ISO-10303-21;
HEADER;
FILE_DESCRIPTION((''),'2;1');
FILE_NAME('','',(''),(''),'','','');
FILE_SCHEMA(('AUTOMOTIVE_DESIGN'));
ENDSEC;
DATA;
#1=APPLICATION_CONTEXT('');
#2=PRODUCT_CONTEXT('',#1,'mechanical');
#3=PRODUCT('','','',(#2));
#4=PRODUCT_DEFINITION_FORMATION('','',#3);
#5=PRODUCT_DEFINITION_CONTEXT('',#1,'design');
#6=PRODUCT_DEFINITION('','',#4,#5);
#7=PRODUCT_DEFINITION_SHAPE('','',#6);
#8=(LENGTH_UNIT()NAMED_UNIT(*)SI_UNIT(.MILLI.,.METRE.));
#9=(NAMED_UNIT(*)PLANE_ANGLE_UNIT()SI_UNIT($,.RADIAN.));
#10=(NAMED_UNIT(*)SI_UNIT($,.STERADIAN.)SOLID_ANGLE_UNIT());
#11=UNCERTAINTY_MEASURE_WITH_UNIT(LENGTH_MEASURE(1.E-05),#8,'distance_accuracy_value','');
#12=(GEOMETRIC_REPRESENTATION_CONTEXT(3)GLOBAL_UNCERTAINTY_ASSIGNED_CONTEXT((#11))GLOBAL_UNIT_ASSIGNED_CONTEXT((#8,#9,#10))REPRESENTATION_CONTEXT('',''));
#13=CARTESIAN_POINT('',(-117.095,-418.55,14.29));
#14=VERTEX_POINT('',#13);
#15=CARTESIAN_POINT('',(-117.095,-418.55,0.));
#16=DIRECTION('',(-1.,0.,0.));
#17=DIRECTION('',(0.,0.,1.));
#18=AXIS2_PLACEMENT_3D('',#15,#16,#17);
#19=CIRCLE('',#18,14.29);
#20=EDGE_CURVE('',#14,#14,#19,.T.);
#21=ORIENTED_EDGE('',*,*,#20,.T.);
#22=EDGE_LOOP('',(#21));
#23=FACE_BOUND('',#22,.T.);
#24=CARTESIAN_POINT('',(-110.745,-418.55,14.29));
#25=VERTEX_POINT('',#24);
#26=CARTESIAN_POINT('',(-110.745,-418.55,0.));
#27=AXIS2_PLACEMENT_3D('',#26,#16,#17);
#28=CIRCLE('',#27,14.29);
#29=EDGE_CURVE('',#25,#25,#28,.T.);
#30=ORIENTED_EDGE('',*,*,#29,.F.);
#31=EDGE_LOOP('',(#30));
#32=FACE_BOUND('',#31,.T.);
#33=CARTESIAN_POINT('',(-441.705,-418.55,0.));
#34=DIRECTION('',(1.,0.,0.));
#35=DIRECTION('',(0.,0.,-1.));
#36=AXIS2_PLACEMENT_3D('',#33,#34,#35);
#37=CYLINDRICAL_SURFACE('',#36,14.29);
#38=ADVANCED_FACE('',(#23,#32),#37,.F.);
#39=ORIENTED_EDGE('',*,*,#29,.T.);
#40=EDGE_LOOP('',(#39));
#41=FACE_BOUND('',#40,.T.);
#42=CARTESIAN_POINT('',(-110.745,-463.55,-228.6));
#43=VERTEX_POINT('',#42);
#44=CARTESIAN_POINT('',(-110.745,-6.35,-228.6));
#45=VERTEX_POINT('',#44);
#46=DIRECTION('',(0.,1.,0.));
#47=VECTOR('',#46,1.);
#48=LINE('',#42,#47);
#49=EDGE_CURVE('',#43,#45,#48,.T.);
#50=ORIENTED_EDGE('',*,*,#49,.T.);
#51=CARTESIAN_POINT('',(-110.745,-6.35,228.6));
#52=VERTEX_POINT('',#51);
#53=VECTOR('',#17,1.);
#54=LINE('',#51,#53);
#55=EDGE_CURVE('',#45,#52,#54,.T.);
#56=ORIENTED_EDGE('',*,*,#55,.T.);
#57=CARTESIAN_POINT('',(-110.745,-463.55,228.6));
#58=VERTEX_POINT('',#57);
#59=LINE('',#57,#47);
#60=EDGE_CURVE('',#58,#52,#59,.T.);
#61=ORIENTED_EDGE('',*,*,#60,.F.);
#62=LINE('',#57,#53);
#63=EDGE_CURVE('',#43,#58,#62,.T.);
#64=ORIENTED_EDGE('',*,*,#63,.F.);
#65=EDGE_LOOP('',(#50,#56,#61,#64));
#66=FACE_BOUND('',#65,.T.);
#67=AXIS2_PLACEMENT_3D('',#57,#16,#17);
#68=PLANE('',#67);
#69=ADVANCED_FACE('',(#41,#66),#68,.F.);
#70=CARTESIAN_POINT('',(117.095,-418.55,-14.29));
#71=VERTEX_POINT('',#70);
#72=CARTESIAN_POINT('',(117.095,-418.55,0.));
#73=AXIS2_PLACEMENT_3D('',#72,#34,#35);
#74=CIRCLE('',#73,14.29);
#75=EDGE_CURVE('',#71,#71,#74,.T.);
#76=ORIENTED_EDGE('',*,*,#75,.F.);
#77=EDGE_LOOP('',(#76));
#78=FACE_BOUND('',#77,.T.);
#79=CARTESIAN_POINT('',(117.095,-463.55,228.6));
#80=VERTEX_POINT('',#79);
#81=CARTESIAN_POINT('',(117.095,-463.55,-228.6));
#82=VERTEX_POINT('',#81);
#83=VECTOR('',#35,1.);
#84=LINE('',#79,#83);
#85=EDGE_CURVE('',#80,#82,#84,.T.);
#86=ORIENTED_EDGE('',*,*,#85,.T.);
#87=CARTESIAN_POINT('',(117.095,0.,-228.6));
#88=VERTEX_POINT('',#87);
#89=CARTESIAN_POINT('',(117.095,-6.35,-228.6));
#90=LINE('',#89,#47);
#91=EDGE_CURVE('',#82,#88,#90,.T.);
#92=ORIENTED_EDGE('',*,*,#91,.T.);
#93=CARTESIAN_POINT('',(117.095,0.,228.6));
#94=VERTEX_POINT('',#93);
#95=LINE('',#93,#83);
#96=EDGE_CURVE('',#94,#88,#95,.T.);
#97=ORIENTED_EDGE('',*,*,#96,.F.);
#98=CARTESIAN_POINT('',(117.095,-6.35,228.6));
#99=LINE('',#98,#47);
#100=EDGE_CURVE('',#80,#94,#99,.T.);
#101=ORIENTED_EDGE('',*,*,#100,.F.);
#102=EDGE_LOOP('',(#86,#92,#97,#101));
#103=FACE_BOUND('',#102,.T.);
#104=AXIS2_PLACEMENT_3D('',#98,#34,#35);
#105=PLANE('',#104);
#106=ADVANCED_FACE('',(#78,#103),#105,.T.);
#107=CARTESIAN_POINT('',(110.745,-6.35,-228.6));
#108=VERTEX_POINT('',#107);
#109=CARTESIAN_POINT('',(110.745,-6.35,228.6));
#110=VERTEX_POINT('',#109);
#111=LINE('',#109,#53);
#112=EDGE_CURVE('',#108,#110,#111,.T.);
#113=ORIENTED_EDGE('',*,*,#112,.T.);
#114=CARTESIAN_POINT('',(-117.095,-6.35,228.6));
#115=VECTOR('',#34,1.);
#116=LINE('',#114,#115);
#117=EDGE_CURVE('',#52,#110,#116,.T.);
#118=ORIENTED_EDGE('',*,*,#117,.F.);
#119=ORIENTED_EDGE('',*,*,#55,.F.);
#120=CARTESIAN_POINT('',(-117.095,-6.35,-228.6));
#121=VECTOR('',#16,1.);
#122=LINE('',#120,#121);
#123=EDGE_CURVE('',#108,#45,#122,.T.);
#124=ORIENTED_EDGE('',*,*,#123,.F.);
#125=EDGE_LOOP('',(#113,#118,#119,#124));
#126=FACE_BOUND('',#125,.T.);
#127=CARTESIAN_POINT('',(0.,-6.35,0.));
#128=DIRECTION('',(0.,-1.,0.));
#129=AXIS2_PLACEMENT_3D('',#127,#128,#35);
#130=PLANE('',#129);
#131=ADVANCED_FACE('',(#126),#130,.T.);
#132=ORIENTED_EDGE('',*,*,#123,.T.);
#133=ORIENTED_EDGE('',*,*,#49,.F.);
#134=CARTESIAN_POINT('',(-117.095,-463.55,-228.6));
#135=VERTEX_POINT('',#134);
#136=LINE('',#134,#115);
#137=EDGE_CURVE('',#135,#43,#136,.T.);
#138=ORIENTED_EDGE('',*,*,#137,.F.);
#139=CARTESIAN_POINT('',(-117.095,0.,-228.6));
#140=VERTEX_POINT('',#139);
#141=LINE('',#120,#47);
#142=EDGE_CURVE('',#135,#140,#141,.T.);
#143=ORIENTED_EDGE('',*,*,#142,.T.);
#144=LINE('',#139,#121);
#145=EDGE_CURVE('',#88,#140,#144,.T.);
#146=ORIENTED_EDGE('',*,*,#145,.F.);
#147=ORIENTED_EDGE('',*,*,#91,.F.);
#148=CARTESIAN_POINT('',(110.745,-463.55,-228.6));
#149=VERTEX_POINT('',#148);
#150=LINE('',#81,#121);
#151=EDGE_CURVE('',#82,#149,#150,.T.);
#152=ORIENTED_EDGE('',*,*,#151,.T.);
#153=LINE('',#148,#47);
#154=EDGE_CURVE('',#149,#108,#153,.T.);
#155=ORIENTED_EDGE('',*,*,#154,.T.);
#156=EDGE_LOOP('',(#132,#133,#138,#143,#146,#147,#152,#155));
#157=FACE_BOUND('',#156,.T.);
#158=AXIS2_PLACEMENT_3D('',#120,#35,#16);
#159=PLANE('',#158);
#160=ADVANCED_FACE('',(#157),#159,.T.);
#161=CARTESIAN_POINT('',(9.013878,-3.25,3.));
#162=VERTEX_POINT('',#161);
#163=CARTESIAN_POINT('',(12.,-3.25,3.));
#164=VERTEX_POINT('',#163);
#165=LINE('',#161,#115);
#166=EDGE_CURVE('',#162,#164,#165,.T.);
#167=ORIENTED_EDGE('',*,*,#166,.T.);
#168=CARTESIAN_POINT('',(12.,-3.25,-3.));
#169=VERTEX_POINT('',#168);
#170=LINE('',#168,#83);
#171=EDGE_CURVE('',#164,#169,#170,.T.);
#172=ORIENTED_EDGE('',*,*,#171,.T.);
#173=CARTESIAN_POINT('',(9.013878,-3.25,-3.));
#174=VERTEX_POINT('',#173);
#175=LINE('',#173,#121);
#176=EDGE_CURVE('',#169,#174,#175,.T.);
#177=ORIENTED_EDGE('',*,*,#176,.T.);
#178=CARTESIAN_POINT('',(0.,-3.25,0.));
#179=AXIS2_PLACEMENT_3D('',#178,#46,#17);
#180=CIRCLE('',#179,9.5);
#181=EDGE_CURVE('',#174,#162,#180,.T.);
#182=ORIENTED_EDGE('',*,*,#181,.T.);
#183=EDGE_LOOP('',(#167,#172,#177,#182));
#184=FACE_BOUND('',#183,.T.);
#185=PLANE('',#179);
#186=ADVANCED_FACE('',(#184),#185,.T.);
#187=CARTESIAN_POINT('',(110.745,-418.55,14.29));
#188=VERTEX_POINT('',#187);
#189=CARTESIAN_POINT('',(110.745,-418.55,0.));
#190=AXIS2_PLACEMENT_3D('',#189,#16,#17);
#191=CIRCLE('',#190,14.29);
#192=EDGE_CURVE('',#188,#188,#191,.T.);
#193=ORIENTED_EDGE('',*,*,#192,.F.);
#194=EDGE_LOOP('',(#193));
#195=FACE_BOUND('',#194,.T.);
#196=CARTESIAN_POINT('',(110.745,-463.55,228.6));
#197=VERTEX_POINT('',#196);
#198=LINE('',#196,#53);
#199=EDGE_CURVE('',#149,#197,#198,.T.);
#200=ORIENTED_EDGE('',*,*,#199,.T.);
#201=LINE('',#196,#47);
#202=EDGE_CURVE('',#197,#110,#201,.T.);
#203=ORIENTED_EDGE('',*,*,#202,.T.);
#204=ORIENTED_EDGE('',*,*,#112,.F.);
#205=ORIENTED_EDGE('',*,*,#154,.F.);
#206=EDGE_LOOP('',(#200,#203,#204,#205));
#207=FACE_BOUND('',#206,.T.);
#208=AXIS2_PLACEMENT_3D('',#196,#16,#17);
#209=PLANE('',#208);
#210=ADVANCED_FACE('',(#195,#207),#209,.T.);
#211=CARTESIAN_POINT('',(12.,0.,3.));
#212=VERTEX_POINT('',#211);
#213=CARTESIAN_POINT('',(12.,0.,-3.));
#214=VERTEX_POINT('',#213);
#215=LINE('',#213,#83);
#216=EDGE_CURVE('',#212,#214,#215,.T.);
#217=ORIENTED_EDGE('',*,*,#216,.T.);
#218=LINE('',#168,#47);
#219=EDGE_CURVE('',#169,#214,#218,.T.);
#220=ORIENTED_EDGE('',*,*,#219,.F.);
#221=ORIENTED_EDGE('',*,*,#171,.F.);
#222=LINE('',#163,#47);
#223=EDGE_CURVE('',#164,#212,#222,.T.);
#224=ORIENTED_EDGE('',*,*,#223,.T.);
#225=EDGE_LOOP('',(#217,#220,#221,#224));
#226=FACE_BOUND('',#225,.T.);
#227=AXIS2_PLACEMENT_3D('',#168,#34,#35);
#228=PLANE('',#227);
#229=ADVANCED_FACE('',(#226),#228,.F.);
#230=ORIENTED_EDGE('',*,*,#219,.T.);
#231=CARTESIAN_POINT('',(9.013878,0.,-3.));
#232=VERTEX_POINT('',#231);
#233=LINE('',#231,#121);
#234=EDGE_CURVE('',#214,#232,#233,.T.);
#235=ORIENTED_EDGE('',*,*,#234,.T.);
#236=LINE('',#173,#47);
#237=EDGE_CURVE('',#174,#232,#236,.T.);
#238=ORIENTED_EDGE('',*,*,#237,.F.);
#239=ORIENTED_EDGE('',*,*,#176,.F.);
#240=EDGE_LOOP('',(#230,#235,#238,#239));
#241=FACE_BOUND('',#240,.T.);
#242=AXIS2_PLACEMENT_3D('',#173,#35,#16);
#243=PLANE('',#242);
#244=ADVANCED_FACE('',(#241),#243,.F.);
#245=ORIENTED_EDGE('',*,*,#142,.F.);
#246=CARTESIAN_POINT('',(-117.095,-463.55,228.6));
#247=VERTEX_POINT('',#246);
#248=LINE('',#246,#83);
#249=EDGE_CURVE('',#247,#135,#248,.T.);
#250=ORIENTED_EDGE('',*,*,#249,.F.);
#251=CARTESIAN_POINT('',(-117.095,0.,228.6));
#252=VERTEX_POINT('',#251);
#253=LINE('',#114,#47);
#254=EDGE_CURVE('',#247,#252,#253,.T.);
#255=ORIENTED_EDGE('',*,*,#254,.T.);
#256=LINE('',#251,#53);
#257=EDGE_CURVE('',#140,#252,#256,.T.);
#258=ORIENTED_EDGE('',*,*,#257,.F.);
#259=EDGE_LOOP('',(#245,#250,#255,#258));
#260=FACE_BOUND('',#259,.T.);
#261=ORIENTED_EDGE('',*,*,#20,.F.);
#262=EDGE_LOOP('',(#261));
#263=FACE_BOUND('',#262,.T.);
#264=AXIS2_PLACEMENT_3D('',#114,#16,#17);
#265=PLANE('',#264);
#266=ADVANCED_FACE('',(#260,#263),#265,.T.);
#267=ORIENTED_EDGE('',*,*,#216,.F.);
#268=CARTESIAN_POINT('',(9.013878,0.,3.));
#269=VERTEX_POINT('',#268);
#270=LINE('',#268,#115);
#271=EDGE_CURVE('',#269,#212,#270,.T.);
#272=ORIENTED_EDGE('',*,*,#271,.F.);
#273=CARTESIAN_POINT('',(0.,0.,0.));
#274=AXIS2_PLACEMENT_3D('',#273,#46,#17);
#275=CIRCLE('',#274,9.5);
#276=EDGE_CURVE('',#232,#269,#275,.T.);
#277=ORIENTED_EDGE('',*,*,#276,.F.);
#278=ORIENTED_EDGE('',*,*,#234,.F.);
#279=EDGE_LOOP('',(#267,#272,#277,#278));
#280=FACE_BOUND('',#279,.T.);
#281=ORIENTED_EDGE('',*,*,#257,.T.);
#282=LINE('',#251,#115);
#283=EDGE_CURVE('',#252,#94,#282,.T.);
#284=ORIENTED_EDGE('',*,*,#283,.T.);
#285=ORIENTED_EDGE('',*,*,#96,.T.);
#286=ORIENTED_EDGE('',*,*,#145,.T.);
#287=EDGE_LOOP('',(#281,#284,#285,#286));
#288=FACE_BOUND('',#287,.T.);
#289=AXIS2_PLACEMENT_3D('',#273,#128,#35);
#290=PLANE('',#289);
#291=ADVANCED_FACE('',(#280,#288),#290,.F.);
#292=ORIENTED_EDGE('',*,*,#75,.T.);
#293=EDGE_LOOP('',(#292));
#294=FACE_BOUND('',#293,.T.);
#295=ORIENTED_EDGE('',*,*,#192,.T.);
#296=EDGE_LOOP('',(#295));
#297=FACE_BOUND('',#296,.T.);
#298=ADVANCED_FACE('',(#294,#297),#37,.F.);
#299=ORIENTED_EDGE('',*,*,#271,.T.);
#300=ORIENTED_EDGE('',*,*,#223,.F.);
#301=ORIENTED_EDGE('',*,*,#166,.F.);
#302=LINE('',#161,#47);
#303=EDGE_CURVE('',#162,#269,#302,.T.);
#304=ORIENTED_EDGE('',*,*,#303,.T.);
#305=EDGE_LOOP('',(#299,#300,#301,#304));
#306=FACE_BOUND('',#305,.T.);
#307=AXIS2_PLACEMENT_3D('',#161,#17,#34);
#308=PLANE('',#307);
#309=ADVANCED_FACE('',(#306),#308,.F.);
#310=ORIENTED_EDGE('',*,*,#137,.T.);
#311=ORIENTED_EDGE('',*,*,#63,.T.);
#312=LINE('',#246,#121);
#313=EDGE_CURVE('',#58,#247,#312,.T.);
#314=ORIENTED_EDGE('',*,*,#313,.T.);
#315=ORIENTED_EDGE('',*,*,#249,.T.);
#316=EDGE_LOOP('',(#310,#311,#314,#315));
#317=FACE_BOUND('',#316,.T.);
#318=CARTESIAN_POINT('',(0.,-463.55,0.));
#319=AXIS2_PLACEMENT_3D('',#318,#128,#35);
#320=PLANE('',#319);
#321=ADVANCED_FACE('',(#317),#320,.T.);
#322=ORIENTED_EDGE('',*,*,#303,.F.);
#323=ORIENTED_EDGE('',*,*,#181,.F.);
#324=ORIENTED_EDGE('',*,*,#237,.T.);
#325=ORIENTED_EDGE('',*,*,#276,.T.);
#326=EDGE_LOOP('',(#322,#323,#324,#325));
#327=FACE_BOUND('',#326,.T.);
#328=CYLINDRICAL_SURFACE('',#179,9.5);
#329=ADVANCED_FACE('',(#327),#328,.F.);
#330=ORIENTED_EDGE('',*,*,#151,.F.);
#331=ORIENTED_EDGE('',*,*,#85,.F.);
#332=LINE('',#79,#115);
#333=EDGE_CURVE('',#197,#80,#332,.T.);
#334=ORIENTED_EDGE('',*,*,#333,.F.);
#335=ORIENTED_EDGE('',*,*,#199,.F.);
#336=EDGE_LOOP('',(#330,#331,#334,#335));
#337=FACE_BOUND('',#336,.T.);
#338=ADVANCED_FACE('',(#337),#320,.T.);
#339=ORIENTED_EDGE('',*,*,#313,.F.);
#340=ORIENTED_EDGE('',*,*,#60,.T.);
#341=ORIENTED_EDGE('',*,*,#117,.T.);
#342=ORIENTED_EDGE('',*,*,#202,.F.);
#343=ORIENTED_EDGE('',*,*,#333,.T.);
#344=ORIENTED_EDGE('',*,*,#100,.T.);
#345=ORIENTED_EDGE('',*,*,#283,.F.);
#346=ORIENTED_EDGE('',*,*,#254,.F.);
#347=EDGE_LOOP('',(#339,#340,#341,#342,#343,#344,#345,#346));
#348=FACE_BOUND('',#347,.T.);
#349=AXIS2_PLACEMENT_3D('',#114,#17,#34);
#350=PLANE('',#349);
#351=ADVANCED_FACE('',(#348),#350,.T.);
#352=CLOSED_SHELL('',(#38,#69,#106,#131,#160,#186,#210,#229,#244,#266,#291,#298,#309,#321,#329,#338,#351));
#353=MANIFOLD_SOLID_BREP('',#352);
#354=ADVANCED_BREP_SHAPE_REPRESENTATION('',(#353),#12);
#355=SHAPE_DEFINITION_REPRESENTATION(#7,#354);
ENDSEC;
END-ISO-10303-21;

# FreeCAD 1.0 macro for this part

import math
import FreeCAD as App
import Part
import Sketcher

V = App.Vector
Q = App.Units.Quantity

doc = App.newDocument("Part")
params = doc.addObject("Spreadsheet::Sheet", "Params")
for row, (alias, value) in enumerate([
    ("sketch1_height", "18 in"),
    ("pad1_length", "0.25 in"),
    ("sketch2_height", "18 in"),
    ("sketch2_width", "0.25 in"),
    ("pad2_length", "18 in"),
    ("pocket1_length", "22 in"),
    ("pocket2_length", "3.25 mm"),
], start=1):
    params.set(f"A{row}", alias)
    params.set(f"B{row}", "=" + value)
    params.setAlias(f"B{row}", alias)

body = doc.addObject("PartDesign::Body", "Body")

# Sketch on XZ plane
sketch1 = body.newObject("Sketcher::SketchObject", "Sketch")
sketch1.AttachmentSupport = (doc.getObject("XZ_Plane"), [""])
sketch1.MapMode = "FlatFace"
sketch1.addGeometry([
    Part.LineSegment(V(-117, -229, 0), V(-117, 229, 0)),
    Part.LineSegment(V(-117, 229, 0), V(117, 229, 0)),
    Part.LineSegment(V(117, 229, 0), V(117, -229, 0)),
    Part.LineSegment(V(117, -229, 0), V(-117, -229, 0)),
], False)
sketch1.addConstraint([
    Sketcher.Constraint("Coincident", 0, 2, 1, 1),
    Sketcher.Constraint("Coincident", 1, 2, 2, 1),
    Sketcher.Constraint("Coincident", 2, 2, 3, 1),
    Sketcher.Constraint("Coincident", 3, 2, 0, 1),
    Sketcher.Constraint("Vertical", 0),
    Sketcher.Constraint("Horizontal", 1),
    Sketcher.Constraint("Vertical", 2),
    Sketcher.Constraint("Horizontal", 3),
    Sketcher.Constraint("Symmetric", 0, 2, 2, 2, -1, 1),
    Sketcher.Constraint("DistanceY", 0, 1, 0, 2, Q("18 in")),
    Sketcher.Constraint("DistanceX", 1, 1, 1, 2, 234.19),
])
sketch1.setExpression("Constraints[9]", "Params.sketch1_height")
pad1 = body.newObject("PartDesign::Pad", "Pad")
pad1.Profile = sketch1
pad1.setExpression("Length", "Params.pad1_length")

# Sketch on XZ plane
sketch2 = body.newObject("Sketcher::SketchObject", "Sketch001")
sketch2.AttachmentSupport = (doc.getObject("XZ_Plane"), [""])
sketch2.MapMode = "FlatFace"
sketch2.AttachmentOffset = App.Placement(V(0, 0, 0.25 * 25.4), App.Rotation())
sketch2.addGeometry([
    Part.LineSegment(V(-117, 229, 0), V(-117, -229, 0)),
    Part.LineSegment(V(-117, -229, 0), V(-111, -229, 0)),
    Part.LineSegment(V(-111, -229, 0), V(-111, 229, 0)),
    Part.LineSegment(V(-111, 229, 0), V(-117, 229, 0)),
], False)
sketch2.addConstraint([
    Sketcher.Constraint("Coincident", 0, 2, 1, 1),
    Sketcher.Constraint("Coincident", 1, 2, 2, 1),
    Sketcher.Constraint("Coincident", 2, 2, 3, 1),
    Sketcher.Constraint("Coincident", 3, 2, 0, 1),
    Sketcher.Constraint("Vertical", 0),
    Sketcher.Constraint("Horizontal", 1),
    Sketcher.Constraint("Vertical", 2),
    Sketcher.Constraint("Horizontal", 3),
    Sketcher.Constraint("DistanceY", 0, 2, 0, 1, Q("18 in")),
    Sketcher.Constraint("DistanceY", 0, 2, -1, 1, Q("9 in")),
    Sketcher.Constraint("DistanceX", 1, 1, 1, 2, Q("0.25 in")),
    Sketcher.Constraint("DistanceX", 0, 2, -1, 1, 117.095),
])
sketch2.setExpression("Constraints[8]", "Params.sketch2_height")
sketch2.setExpression("Constraints[10]", "Params.sketch2_width")
pad2 = body.newObject("PartDesign::Pad", "Pad001")
pad2.Profile = sketch2
pad2.setExpression("Length", "Params.pad2_length")
doc.recompute()

mirrored = body.newObject("PartDesign::Mirrored", "Mirrored")
mirrored.Originals = [pad2]
mirrored.MirrorPlane = (doc.getObject("YZ_Plane"), [""])
body.Tip = mirrored

# Sketch on YZ plane
sketch3 = body.newObject("Sketcher::SketchObject", "Sketch002")
sketch3.AttachmentSupport = (doc.getObject("YZ_Plane"), [""])
sketch3.MapMode = "FlatFace"
sketch3.AttachmentOffset = App.Placement(V(0, 0, 117.095), App.Rotation())
sketch3.addGeometry(Part.Circle(V(-419, 0, 0), V(0, 0, 1), 14), False)
sketch3.addConstraint([
    Sketcher.Constraint("PointOnObject", 0, 3, -1),
    Sketcher.Constraint("Diameter", 0, 28.58),
    Sketcher.Constraint("DistanceX", 0, 3, -1, 1, 418.55),
])
pocket1 = body.newObject("PartDesign::Pocket", "Pocket")
pocket1.Profile = sketch3
pocket1.setExpression("Length", "Params.pocket1_length")

# Sketch on XZ plane
sketch4 = body.newObject("Sketcher::SketchObject", "Sketch003")
sketch4.AttachmentSupport = (doc.getObject("XZ_Plane"), [""])
sketch4.MapMode = "FlatFace"
sketch4.addGeometry([
    Part.LineSegment(V(12, -3, 0), V(9, -3, 0)),
    Part.ArcOfCircle(Part.Circle(V(0, 0, 0), V(0, 0, 1), 9.5), math.radians(18), math.radians(342)),
    Part.LineSegment(V(9, 3, 0), V(12, 3, 0)),
    Part.LineSegment(V(12, 3, 0), V(12, -3, 0)),
], False)
sketch4.addConstraint([
    Sketcher.Constraint("Coincident", 0, 2, 1, 2),
    Sketcher.Constraint("Coincident", 1, 1, 2, 1),
    Sketcher.Constraint("Coincident", 2, 2, 3, 1),
    Sketcher.Constraint("Coincident", 3, 2, 0, 1),
    Sketcher.Constraint("Horizontal", 0),
    Sketcher.Constraint("Horizontal", 2),
    Sketcher.Constraint("Vertical", 3),
    Sketcher.Constraint("Coincident", 1, 3, -1, 1),
    Sketcher.Constraint("Vertical", 0, 2, 1, 1),
    Sketcher.Constraint("Radius", 1, 9.5),
    Sketcher.Constraint("DistanceY", 3, 2, 3, 1, 6.0),
    Sketcher.Constraint("DistanceX", 0, 2, 0, 1, 2.986122),
])
pocket2 = body.newObject("PartDesign::Pocket", "Pocket001")
pocket2.Profile = sketch4
pocket2.setExpression("Length", "Params.pocket2_length")
pocket2.Reversed = True

doc.recompute()
